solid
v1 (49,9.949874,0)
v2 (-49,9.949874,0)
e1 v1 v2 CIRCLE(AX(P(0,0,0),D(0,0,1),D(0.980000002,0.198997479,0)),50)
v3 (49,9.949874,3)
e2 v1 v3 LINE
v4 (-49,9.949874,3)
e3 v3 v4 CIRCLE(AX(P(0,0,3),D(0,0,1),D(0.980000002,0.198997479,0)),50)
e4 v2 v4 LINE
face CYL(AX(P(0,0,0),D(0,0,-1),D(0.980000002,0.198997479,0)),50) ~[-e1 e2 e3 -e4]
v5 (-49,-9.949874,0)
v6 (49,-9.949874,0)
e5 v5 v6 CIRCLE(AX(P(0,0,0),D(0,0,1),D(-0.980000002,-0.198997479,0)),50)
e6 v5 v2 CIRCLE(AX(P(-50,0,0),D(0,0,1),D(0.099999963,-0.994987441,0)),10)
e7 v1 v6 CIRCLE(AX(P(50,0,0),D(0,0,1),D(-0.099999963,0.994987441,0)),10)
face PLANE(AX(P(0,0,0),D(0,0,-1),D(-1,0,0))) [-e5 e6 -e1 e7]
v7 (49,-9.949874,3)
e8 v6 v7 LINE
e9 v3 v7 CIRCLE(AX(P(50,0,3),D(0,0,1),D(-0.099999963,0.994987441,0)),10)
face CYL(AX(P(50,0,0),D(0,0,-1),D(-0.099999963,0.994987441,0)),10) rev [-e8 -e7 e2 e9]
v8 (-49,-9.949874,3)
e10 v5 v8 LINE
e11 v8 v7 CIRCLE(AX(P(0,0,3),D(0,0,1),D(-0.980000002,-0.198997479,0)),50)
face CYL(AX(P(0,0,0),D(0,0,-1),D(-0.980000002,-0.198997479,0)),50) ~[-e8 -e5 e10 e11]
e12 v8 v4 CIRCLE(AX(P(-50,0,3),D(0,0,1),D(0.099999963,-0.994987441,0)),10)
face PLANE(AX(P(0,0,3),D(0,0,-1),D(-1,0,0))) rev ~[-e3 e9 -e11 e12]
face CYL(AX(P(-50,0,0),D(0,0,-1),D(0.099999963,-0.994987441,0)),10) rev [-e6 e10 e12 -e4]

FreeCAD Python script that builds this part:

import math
import FreeCAD as App
import Part
import Sketcher
from FreeCAD import Vector

doc = App.newDocument("Part")
body = doc.addObject("PartDesign::Body", "Body")

# Sketch on XY plane
sketch1 = body.newObject("Sketcher::SketchObject", "Sketch")
sketch1.AttachmentSupport = (doc.getObject("XY_Plane"), [""])
sketch1.MapMode = "FlatFace"
sketch1.addGeometry([
    Part.ArcOfCircle(Part.Circle(Vector(-50, 0, 0), Vector(0, 0, 1), 10), math.radians(-84), math.radians(84)),
    Part.ArcOfCircle(Part.Circle(Vector(0, 0, 0), Vector(0, 0, 1), 50), math.radians(-169), math.radians(-11)),
    Part.ArcOfCircle(Part.Circle(Vector(50, 0, 0), Vector(0, 0, 1), 10), math.radians(96), math.radians(264)),
    Part.ArcOfCircle(Part.Circle(Vector(0, 0, 0), Vector(0, 0, 1), 50), math.radians(11), math.radians(169)),
], False)
sketch1.addConstraint([
    Sketcher.Constraint("Coincident", 0, 1, 1, 1),
    Sketcher.Constraint("Coincident", 1, 2, 2, 2),
    Sketcher.Constraint("Coincident", 2, 1, 3, 1),
    Sketcher.Constraint("Coincident", 3, 2, 0, 2),
    Sketcher.Constraint("Coincident", 1, 3, -1, 1),
    Sketcher.Constraint("Coincident", 3, 3, -1, 1),
    Sketcher.Constraint("Equal", 0, 2),
    Sketcher.Constraint("Equal", 1, 3),
    Sketcher.Constraint("Symmetric", 0, 3, 2, 3, -1, 1),
    Sketcher.Constraint("PointOnObject", 0, 3, -1),
    Sketcher.Constraint("Radius", 0, 10.0),
    Sketcher.Constraint("Radius", 1, 50.0),
    Sketcher.Constraint("DistanceX", 0, 3, -1, 1, 50.0),
])
pad1 = body.newObject("PartDesign::Pad", "Pad")
pad1.Profile = sketch1
pad1.Length = 3

doc.recompute()
